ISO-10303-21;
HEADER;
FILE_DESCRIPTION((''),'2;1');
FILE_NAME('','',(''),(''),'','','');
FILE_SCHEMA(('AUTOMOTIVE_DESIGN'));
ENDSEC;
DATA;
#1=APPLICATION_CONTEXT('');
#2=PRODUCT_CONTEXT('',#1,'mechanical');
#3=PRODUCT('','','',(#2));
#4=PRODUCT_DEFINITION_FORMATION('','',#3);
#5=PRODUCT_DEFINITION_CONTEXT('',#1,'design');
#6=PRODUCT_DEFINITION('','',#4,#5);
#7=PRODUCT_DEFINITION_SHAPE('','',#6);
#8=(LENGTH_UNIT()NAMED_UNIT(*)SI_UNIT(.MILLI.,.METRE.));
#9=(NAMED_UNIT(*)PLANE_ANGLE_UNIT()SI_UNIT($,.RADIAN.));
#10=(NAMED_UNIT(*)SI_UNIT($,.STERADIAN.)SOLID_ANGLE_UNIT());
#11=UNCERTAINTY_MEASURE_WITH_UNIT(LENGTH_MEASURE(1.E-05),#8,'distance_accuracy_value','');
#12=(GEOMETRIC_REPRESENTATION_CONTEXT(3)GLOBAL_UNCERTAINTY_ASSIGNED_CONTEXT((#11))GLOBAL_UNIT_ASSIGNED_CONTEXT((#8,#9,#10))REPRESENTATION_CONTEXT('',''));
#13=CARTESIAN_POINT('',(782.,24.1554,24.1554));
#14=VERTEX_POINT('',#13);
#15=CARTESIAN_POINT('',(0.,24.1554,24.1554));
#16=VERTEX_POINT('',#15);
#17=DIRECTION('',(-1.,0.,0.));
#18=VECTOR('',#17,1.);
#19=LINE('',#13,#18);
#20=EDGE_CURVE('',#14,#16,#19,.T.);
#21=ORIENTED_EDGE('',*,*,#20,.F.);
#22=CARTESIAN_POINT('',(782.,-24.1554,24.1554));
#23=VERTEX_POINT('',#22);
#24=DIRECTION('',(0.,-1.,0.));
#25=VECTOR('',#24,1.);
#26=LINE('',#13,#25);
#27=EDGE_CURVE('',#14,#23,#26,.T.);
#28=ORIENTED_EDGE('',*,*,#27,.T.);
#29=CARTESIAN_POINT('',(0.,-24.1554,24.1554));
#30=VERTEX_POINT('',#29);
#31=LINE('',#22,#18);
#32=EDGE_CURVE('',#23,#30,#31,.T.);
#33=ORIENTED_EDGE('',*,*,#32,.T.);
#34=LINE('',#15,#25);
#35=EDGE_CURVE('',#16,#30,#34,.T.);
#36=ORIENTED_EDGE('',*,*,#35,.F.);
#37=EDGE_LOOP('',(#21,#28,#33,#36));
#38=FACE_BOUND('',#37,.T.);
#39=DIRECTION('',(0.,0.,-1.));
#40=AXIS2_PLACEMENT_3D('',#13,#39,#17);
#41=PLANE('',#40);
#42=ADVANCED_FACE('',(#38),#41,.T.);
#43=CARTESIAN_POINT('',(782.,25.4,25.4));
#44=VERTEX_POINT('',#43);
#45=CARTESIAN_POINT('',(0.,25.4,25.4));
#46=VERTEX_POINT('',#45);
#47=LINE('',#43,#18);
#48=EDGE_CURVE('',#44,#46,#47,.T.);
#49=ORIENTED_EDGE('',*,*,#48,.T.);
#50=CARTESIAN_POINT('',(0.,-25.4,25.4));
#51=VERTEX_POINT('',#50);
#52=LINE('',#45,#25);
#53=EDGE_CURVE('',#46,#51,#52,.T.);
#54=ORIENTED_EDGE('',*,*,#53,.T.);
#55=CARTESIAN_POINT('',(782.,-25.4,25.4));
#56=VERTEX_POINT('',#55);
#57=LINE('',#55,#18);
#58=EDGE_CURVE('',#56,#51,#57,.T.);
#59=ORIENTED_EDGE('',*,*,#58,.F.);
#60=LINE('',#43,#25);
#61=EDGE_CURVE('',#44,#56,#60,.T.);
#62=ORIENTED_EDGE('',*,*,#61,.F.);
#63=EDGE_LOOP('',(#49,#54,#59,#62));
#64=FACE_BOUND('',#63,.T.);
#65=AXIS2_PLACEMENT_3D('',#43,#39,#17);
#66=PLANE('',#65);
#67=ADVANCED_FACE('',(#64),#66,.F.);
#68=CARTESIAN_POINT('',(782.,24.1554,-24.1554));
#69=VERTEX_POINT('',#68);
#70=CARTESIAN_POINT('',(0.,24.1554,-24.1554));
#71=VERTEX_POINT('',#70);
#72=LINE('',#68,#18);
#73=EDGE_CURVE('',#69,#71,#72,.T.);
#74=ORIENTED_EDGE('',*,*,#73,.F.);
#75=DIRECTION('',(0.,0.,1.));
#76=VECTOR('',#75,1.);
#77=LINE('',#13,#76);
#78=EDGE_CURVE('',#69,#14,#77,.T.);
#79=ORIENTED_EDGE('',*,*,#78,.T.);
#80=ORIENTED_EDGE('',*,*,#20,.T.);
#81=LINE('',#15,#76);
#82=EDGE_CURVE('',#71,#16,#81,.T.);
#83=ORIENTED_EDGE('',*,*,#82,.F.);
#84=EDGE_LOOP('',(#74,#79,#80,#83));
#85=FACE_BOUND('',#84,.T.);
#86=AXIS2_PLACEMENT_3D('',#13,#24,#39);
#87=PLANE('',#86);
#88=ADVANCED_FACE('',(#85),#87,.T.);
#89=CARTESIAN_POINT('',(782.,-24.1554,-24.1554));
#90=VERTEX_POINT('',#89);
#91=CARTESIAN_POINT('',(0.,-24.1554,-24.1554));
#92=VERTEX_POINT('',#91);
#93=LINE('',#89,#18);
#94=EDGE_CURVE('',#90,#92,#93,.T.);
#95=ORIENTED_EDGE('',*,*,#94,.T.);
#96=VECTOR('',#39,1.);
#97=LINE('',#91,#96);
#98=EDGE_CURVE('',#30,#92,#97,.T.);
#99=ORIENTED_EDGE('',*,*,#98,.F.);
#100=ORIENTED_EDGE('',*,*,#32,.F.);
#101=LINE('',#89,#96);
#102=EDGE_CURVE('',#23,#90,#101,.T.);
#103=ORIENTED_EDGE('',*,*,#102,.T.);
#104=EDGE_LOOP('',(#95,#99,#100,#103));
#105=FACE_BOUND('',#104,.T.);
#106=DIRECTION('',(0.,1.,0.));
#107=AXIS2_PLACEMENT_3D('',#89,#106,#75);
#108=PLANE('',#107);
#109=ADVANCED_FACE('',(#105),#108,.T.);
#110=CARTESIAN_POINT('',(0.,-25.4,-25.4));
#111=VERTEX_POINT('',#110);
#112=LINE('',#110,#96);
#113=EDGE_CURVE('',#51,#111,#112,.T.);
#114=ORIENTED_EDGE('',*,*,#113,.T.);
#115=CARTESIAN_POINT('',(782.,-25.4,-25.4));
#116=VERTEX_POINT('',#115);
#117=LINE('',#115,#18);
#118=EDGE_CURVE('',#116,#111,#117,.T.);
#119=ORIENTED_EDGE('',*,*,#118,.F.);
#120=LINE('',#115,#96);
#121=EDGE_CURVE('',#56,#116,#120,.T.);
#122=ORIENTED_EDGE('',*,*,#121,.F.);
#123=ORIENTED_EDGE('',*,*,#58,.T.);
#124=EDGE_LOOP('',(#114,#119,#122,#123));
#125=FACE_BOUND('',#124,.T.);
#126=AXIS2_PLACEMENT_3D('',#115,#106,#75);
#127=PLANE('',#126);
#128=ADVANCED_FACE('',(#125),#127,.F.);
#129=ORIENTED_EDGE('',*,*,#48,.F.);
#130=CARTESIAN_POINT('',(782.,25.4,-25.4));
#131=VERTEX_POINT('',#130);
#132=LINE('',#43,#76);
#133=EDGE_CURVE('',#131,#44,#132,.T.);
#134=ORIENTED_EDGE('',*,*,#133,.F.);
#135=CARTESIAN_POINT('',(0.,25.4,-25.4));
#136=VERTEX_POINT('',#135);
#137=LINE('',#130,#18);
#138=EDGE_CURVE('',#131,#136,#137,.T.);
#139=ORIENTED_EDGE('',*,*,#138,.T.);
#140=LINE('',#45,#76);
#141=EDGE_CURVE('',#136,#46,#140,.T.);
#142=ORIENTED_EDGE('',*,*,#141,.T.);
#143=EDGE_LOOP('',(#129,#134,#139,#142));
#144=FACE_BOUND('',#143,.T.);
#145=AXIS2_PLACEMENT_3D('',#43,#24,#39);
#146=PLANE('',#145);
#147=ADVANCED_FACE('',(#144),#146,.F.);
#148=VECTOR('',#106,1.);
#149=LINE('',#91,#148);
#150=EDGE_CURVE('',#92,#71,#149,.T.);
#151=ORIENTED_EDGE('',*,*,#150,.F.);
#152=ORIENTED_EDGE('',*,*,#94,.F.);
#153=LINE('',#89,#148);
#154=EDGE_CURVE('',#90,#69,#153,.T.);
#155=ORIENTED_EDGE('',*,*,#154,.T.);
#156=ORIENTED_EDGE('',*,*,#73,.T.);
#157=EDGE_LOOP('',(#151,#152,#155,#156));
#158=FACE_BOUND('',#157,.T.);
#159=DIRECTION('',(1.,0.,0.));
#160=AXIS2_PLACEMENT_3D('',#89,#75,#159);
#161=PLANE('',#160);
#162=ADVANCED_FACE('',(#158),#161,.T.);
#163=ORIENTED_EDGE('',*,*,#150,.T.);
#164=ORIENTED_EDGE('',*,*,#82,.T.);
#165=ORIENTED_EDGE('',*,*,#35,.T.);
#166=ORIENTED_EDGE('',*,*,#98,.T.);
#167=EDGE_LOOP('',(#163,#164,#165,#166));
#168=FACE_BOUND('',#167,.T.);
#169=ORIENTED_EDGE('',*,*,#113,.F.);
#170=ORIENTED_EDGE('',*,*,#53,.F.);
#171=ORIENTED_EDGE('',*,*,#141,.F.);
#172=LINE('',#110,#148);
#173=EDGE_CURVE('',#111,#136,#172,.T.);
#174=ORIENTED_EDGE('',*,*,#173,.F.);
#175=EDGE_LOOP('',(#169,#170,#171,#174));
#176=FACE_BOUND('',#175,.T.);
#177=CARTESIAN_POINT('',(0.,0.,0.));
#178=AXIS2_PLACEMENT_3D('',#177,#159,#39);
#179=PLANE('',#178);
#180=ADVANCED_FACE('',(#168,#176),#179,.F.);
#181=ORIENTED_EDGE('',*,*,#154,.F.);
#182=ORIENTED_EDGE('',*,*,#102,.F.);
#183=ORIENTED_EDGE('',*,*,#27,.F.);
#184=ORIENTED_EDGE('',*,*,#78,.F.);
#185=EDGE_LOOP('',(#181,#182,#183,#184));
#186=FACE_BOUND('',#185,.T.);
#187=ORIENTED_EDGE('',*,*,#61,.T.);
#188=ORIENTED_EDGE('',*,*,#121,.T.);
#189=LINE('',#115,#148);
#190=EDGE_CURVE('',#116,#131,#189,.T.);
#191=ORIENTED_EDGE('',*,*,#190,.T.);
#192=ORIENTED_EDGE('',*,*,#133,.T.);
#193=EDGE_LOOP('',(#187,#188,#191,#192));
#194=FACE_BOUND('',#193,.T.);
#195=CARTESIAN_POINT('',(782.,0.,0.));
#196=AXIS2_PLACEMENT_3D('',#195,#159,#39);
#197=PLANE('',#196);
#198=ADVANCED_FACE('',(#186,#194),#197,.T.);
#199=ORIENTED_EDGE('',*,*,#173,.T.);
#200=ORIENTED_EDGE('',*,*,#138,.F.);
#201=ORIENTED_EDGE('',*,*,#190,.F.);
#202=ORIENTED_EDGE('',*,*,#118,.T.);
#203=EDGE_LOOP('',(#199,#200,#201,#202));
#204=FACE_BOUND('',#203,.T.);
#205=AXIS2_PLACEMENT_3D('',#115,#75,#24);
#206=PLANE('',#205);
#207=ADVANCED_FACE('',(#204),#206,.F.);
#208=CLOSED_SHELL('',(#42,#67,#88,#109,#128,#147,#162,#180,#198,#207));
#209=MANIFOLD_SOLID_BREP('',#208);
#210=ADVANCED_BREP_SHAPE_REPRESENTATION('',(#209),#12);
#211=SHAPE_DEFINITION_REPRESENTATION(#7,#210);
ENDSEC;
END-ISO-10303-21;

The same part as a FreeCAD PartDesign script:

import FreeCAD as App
import Part
import Sketcher
Q = App.Units.Quantity

doc = App.newDocument("Part")
body = doc.addObject("PartDesign::Body", "Body")

# Sketch on YZ plane
sketch1 = doc.addObject("Sketcher::SketchObject", "Sketch")
body.addObject(sketch1)
sketch1.AttachmentSupport = (doc.YZ_Plane, [""])
sketch1.MapMode = "FlatFace"
sketch1.addGeometry([
    Part.LineSegment(App.Vector(-25, 25, 0), App.Vector(-25, -25, 0)),  # 0
    Part.LineSegment(App.Vector(-25, -25, 0), App.Vector(25, -25, 0)),  # 1
    Part.LineSegment(App.Vector(25, -25, 0), App.Vector(25, 25, 0)),  # 2
    Part.LineSegment(App.Vector(25, 25, 0), App.Vector(-25, 25, 0)),  # 3
    Part.LineSegment(App.Vector(24, -24, 0), App.Vector(-24, -24, 0)),  # 4
    Part.LineSegment(App.Vector(-24, -24, 0), App.Vector(-24, 24, 0)),  # 5
    Part.LineSegment(App.Vector(-24, 24, 0), App.Vector(24, 24, 0)),  # 6
    Part.LineSegment(App.Vector(24, 24, 0), App.Vector(24, -24, 0)),  # 7
], False)
sketch1.addConstraint([
    Sketcher.Constraint("Coincident", 0, 2, 1, 1),
    Sketcher.Constraint("Coincident", 1, 2, 2, 1),
    Sketcher.Constraint("Coincident", 2, 2, 3, 1),
    Sketcher.Constraint("Coincident", 3, 2, 0, 1),
    Sketcher.Constraint("Coincident", 4, 2, 5, 1),
    Sketcher.Constraint("Coincident", 5, 2, 6, 1),
    Sketcher.Constraint("Coincident", 6, 2, 7, 1),
    Sketcher.Constraint("Coincident", 7, 2, 4, 1),
    Sketcher.Constraint("Vertical", 0),
    Sketcher.Constraint("Horizontal", 1),
    Sketcher.Constraint("Vertical", 2),
    Sketcher.Constraint("Horizontal", 3),
    Sketcher.Constraint("Horizontal", 4),
    Sketcher.Constraint("Vertical", 5),
    Sketcher.Constraint("Horizontal", 6),
    Sketcher.Constraint("Vertical", 7),
    Sketcher.Constraint("Symmetric", 0, 2, 2, 2, -1, 1),
    Sketcher.Constraint("Symmetric", 4, 2, 6, 2, -1, 1),
    Sketcher.Constraint("Equal", 3, 0),
    Sketcher.Constraint("Equal", 6, 5),
    Sketcher.Constraint("DistanceX", 1, 1, 1, 2, Q("2 in")),
    Sketcher.Constraint("DistanceX", 4, 2, 4, 1, Q("1.902 in")),
])
pad1 = doc.addObject("PartDesign::Pad", "Pad")
body.addObject(pad1)
pad1.Profile = sketch1
pad1.Length = 782

doc.recompute()
